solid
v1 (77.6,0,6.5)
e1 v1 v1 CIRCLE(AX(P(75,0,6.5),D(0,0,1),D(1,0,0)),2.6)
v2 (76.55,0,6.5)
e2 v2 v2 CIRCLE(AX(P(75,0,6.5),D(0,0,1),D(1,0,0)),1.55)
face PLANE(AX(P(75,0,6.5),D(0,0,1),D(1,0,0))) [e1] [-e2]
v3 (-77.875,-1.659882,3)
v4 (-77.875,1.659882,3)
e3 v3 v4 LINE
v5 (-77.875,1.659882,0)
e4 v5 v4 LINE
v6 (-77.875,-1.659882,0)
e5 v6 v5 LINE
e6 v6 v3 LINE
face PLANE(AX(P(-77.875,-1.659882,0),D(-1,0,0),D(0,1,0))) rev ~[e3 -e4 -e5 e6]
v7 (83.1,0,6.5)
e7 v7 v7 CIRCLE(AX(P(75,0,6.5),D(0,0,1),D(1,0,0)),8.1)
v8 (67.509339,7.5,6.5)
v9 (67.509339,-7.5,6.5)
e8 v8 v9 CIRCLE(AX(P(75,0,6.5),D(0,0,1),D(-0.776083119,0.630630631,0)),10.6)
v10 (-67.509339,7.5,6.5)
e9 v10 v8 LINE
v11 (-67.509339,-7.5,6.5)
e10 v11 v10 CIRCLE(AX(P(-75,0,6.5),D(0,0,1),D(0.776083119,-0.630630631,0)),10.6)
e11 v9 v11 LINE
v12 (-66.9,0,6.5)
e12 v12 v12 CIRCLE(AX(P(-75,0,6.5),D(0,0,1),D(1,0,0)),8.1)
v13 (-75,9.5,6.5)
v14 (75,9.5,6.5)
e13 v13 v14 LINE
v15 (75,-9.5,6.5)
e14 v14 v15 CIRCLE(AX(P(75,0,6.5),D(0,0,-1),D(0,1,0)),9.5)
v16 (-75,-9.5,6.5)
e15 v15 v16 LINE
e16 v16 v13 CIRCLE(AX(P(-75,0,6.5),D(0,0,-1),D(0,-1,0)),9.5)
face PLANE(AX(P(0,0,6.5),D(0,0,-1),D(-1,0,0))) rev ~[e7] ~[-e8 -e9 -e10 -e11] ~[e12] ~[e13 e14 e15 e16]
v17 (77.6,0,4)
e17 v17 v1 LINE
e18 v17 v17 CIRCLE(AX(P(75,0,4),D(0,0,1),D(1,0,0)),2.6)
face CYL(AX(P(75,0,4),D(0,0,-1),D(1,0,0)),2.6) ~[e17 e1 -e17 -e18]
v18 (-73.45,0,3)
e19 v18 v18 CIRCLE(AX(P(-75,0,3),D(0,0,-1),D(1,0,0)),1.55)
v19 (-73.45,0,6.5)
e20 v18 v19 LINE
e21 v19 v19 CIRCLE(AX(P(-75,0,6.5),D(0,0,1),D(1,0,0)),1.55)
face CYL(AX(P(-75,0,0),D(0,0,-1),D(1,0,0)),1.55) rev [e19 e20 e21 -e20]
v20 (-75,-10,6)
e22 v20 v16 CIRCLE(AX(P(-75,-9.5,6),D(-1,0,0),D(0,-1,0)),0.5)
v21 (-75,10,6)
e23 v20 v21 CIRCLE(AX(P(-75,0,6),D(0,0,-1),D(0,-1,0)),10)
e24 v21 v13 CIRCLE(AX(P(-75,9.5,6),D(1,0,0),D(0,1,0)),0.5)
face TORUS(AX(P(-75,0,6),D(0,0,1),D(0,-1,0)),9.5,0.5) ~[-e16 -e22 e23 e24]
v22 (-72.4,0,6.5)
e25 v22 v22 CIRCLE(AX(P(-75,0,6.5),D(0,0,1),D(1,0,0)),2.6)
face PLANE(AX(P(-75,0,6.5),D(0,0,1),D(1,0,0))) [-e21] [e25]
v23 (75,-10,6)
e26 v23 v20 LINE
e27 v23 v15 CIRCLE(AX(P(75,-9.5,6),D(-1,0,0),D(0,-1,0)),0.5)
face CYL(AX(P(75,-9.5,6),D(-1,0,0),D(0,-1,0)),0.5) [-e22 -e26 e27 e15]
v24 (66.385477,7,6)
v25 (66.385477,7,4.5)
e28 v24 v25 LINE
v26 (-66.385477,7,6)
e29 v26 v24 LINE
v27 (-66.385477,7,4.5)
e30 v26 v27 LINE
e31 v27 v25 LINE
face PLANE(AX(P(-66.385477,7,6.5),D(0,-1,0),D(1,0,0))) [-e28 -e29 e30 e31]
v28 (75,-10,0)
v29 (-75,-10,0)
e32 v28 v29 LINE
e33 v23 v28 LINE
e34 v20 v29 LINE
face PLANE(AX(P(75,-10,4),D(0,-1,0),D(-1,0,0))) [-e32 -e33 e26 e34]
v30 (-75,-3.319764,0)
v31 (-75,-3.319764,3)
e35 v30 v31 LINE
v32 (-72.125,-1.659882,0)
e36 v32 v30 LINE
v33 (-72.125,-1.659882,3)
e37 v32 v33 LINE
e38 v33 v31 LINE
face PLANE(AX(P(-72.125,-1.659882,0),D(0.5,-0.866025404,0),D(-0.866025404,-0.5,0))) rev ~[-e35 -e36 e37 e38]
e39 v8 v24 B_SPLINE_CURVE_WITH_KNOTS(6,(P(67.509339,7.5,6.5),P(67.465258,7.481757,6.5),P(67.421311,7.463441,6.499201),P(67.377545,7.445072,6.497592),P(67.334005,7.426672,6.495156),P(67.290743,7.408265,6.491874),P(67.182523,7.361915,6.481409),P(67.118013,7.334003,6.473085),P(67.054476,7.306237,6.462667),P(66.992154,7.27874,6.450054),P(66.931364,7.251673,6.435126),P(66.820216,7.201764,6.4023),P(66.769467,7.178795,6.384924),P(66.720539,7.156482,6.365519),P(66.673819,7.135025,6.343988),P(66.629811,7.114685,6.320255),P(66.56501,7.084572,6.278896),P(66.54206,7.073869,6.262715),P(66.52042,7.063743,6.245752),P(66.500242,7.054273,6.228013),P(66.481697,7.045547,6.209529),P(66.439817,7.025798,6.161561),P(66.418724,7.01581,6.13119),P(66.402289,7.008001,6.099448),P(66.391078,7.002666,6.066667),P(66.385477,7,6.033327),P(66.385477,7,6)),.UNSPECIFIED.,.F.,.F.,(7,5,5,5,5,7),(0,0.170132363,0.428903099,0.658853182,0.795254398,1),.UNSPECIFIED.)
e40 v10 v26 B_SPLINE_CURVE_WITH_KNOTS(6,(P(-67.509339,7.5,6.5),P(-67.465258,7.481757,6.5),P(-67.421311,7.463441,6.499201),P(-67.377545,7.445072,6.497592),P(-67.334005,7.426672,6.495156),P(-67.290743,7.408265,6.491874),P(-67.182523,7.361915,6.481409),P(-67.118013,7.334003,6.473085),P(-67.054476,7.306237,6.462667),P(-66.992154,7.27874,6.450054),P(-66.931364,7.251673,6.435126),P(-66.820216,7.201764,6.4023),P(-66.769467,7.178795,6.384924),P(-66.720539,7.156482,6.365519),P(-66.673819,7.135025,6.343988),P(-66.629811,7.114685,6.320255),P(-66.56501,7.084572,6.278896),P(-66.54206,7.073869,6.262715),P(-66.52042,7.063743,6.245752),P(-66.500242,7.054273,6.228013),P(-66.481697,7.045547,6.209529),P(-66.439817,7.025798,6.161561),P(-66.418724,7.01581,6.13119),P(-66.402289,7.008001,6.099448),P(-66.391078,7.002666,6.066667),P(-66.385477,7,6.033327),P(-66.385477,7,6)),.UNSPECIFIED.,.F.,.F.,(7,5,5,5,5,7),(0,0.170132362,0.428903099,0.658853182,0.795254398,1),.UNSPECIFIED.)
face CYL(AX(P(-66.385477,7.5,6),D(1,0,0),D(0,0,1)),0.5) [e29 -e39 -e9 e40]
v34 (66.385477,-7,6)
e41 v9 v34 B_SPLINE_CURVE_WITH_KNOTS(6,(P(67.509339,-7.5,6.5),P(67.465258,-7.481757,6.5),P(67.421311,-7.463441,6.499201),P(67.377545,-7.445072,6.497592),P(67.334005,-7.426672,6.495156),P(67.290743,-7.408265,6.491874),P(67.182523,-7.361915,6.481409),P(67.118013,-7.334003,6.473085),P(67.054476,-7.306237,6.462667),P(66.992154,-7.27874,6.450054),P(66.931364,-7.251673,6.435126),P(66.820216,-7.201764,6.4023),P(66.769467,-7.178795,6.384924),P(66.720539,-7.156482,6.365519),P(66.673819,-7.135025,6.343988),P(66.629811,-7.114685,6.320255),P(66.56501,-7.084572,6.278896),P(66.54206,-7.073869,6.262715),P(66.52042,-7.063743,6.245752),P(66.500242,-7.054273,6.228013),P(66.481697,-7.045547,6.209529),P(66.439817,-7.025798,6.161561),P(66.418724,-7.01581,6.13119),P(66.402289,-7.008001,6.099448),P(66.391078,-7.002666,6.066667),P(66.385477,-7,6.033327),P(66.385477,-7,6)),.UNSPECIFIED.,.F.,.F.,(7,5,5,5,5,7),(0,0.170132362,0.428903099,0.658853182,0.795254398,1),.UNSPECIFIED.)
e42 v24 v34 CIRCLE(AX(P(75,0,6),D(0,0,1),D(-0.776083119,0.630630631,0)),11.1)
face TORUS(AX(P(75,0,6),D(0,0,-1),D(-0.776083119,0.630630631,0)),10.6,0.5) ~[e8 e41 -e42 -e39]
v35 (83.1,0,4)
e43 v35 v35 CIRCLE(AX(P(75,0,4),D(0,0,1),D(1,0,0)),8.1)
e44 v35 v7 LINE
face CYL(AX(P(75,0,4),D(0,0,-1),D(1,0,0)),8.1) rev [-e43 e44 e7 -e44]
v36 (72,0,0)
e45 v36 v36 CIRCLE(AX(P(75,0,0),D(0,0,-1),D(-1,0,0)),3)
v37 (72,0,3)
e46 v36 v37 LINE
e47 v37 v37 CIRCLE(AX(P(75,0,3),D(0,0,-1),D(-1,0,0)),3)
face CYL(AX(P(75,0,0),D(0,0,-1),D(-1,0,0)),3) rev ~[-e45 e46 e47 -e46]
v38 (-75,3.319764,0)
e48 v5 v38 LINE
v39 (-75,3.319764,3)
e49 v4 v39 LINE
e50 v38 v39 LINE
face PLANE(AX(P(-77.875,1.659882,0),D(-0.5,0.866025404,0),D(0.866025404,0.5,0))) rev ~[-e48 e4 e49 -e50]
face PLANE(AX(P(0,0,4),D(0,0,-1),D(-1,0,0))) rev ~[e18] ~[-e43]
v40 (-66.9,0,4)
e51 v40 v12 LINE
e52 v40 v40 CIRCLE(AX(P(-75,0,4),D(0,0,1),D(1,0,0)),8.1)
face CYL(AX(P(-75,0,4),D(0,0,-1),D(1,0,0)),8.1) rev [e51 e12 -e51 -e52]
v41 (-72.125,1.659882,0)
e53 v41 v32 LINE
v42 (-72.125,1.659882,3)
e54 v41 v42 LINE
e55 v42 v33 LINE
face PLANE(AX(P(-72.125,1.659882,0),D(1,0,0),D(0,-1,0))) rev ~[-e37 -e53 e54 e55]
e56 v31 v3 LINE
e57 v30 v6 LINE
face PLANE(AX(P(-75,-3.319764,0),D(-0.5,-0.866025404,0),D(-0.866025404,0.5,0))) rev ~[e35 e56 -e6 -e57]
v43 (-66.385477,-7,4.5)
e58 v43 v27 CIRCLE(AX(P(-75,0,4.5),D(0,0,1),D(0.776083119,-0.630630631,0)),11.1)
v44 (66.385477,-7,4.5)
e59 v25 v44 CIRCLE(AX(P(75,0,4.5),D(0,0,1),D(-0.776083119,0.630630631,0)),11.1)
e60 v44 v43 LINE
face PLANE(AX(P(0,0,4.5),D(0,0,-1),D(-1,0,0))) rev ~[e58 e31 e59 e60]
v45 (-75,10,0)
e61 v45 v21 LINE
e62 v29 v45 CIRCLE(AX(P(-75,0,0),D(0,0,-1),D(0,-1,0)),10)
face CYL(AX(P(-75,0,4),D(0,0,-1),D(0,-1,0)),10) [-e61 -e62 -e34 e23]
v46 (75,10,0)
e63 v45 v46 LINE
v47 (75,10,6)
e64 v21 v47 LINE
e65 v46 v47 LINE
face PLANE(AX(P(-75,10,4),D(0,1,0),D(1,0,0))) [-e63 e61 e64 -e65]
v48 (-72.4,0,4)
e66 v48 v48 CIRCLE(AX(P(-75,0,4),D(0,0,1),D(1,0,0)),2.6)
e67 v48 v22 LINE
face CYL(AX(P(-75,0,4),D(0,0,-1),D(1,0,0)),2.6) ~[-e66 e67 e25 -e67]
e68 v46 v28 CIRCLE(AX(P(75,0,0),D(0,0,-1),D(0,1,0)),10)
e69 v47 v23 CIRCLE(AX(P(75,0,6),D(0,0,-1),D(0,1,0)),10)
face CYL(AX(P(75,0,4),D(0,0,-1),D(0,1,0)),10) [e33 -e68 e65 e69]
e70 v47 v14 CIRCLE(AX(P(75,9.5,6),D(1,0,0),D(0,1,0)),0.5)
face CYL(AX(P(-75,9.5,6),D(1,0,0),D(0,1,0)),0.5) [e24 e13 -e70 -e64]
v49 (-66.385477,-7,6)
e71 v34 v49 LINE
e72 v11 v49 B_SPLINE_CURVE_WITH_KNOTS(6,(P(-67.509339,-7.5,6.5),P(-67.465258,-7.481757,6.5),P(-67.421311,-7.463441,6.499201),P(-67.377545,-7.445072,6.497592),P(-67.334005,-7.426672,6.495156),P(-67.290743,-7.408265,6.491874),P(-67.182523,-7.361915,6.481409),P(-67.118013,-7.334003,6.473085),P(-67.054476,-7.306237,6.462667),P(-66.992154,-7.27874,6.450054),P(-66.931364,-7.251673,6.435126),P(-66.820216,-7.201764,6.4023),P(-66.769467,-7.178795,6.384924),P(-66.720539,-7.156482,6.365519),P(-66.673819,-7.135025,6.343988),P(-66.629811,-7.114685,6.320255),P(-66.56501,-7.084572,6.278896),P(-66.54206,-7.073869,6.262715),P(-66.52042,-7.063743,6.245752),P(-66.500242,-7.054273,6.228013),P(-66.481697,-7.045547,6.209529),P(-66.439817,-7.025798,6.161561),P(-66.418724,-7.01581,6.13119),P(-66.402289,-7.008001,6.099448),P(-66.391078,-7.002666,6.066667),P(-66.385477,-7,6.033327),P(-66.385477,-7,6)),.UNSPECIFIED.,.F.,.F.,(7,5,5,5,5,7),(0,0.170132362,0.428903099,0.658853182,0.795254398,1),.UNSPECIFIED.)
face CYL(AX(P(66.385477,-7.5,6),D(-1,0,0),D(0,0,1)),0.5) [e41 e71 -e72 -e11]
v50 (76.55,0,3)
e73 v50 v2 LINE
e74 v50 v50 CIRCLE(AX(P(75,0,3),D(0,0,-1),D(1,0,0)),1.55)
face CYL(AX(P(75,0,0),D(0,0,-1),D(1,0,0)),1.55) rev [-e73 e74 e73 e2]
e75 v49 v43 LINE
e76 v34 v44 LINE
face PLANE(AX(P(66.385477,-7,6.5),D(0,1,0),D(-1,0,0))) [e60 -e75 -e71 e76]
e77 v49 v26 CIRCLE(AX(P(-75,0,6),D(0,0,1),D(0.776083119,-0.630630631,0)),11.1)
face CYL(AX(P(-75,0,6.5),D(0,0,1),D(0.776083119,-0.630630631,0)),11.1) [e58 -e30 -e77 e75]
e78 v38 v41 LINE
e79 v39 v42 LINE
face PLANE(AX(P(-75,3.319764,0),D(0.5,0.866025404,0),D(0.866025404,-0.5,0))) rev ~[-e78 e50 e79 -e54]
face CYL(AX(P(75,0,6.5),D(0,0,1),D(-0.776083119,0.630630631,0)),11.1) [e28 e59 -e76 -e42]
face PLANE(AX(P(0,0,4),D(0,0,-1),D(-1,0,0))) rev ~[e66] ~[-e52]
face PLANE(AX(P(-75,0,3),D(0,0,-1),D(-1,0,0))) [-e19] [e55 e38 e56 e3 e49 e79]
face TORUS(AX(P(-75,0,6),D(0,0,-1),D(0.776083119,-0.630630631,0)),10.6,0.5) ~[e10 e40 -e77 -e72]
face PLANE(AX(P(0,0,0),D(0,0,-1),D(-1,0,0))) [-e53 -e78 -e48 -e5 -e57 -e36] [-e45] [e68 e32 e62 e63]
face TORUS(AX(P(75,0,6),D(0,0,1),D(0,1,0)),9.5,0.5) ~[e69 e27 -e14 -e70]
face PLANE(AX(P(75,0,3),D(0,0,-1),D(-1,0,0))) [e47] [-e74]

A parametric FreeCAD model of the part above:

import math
import FreeCAD as App
import Part
import Sketcher
Q = App.Units.Quantity


def edges_at(feature, points):
    """Names of the edges that pass closest to the given points."""
    edges = feature.Shape.Edges
    near = lambda p: min(range(len(edges)), key=lambda i: edges[i].distToShape(Part.Vertex(*p))[0])
    return sorted({f"Edge{near(p) + 1}" for p in points})

doc = App.newDocument("Part")
body = doc.addObject("PartDesign::Body", "Body")

# Sketch on XY plane
sketch1 = body.newObject("Sketcher::SketchObject", "Sketch")
sketch1.AttachmentSupport = (doc.getObject("XY_Plane"), [""])
sketch1.MapMode = "FlatFace"
sketch1.addGeometry(Part.ArcOfCircle(Part.Circle(App.Vector(75, 0, 0), App.Vector(0, 0, 1), 10), math.radians(-90), math.radians(90)), False)
sketch1.addGeometry(Part.LineSegment(App.Vector(75, 10, 0), App.Vector(-75, 10, 0)), False)
sketch1.addGeometry(Part.ArcOfCircle(Part.Circle(App.Vector(-75, 0, 0), App.Vector(0, 0, 1), 10), math.radians(90), math.radians(270)), False)
sketch1.addGeometry(Part.LineSegment(App.Vector(-75, -10, 0), App.Vector(75, -10, 0)), False)
sketch1.addGeometry(Part.Circle(App.Vector(75, 0, 0), App.Vector(0, 0, 1), 1.6), False)
sketch1.addGeometry(Part.Circle(App.Vector(-75, 0, 0), App.Vector(0, 0, 1), 1.6), False)
sketch1.addConstraint(Sketcher.Constraint("Tangent", 0, 2, 1, 1))
sketch1.addConstraint(Sketcher.Constraint("Tangent", 1, 2, 2, 1))
sketch1.addConstraint(Sketcher.Constraint("Tangent", 2, 2, 3, 1))
sketch1.addConstraint(Sketcher.Constraint("Tangent", 3, 2, 0, 1))
sketch1.addConstraint(Sketcher.Constraint("Horizontal", 1))
sketch1.addConstraint(Sketcher.Constraint("Horizontal", 3))
sketch1.addConstraint(Sketcher.Constraint("Coincident", 4, 3, 0, 3))
sketch1.addConstraint(Sketcher.Constraint("Coincident", 5, 3, 2, 3))
sketch1.addConstraint(Sketcher.Constraint("Equal", 4, 5))
sketch1.addConstraint(Sketcher.Constraint("Symmetric", 0, 3, 2, 3, -1, 1))
sketch1.addConstraint(Sketcher.Constraint("Radius", 0, 10.0))
sketch1.addConstraint(Sketcher.Constraint("Diameter", 4, 3.1))
sketch1.addConstraint(Sketcher.Constraint("DistanceX", 1, 2, 1, 1, 150.0))
pad1 = body.newObject("PartDesign::Pad", "Pad")
pad1.Profile = sketch1
pad1.Length = 4

# Sketch on XY plane
sketch2 = body.newObject("Sketcher::SketchObject", "Sketch001")
sketch2.AttachmentSupport = (doc.getObject("XY_Plane"), [""])
sketch2.MapMode = "FlatFace"
sketch2.AttachmentOffset = App.Placement(App.Vector(0, 0, 4), App.Rotation())
sketch2.addGeometry(Part.ArcOfCircle(Part.Circle(App.Vector(75, 0, 0), App.Vector(0, 0, 1), 10), math.radians(-90), math.radians(90)), False)
sketch2.addGeometry(Part.LineSegment(App.Vector(75, 10, 0), App.Vector(-75, 10, 0)), False)
sketch2.addGeometry(Part.ArcOfCircle(Part.Circle(App.Vector(-75, 0, 0), App.Vector(0, 0, 1), 10), math.radians(90), math.radians(270)), False)
sketch2.addGeometry(Part.LineSegment(App.Vector(-75, -10, 0), App.Vector(75, -10, 0)), False)
sketch2.addGeometry(Part.Circle(App.Vector(75, 0, 0), App.Vector(0, 0, 1), 8.1), False)
sketch2.addGeometry(Part.Circle(App.Vector(-75, 0, 0), App.Vector(0, 0, 1), 8.1), False)
sketch2.addGeometry(Part.Circle(App.Vector(75, 0, 0), App.Vector(0, 0, 1), 2.6), False)
sketch2.addGeometry(Part.Circle(App.Vector(75, 0, 0), App.Vector(0, 0, 1), 1.6), False)
sketch2.addGeometry(Part.Circle(App.Vector(-75, 0, 0), App.Vector(0, 0, 1), 2.6), False)
sketch2.addGeometry(Part.Circle(App.Vector(-75, 0, 0), App.Vector(0, 0, 1), 1.6), False)
sketch2.addConstraint(Sketcher.Constraint("Tangent", 0, 2, 1, 1))
sketch2.addConstraint(Sketcher.Constraint("Tangent", 1, 2, 2, 1))
sketch2.addConstraint(Sketcher.Constraint("Tangent", 2, 2, 3, 1))
sketch2.addConstraint(Sketcher.Constraint("Tangent", 3, 2, 0, 1))
sketch2.addConstraint(Sketcher.Constraint("Horizontal", 1))
sketch2.addConstraint(Sketcher.Constraint("Horizontal", 3))
sketch2.addConstraint(Sketcher.Constraint("Coincident", 4, 3, 0, 3))
sketch2.addConstraint(Sketcher.Constraint("Coincident", 5, 3, 2, 3))
sketch2.addConstraint(Sketcher.Constraint("Coincident", 6, 3, 0, 3))
sketch2.addConstraint(Sketcher.Constraint("Coincident", 7, 3, 0, 3))
sketch2.addConstraint(Sketcher.Constraint("Coincident", 8, 3, 2, 3))
sketch2.addConstraint(Sketcher.Constraint("Coincident", 9, 3, 2, 3))
sketch2.addConstraint(Sketcher.Constraint("Equal", 4, 5))
sketch2.addConstraint(Sketcher.Constraint("Equal", 6, 8))
sketch2.addConstraint(Sketcher.Constraint("Equal", 7, 9))
sketch2.addConstraint(Sketcher.Constraint("Symmetric", 0, 3, 2, 3, -1, 1))
sketch2.addConstraint(Sketcher.Constraint("Radius", 0, 10.0))
sketch2.addConstraint(Sketcher.Constraint("Diameter", 4, 16.2))
sketch2.addConstraint(Sketcher.Constraint("Diameter", 6, 5.2))
sketch2.addConstraint(Sketcher.Constraint("Diameter", 7, 3.1))
sketch2.addConstraint(Sketcher.Constraint("DistanceX", 1, 2, 1, 1, 150.0))
pad2 = body.newObject("PartDesign::Pad", "Pad001")
pad2.Profile = sketch2
pad2.Length = 2.5

# Sketch on XY plane
sketch3 = body.newObject("Sketcher::SketchObject", "Sketch002")
sketch3.AttachmentSupport = (doc.getObject("XY_Plane"), [""])
sketch3.MapMode = "FlatFace"
sketch3.addGeometry(Part.Circle(App.Vector(75, 0, 0), App.Vector(0, 0, 1), 3), False)
sketch3.addGeometry(Part.LineSegment(App.Vector(-72.1, 1.7, 0), App.Vector(-72.1, -1.7, 0)), False)
sketch3.addGeometry(Part.LineSegment(App.Vector(-72.1, -1.7, 0), App.Vector(-75, -3.3, 0)), False)
sketch3.addGeometry(Part.LineSegment(App.Vector(-75, -3.3, 0), App.Vector(-77.9, -1.7, 0)), False)
sketch3.addGeometry(Part.LineSegment(App.Vector(-77.9, -1.7, 0), App.Vector(-77.9, 1.7, 0)), False)
sketch3.addGeometry(Part.LineSegment(App.Vector(-77.9, 1.7, 0), App.Vector(-75, 3.3, 0)), False)
sketch3.addGeometry(Part.LineSegment(App.Vector(-75, 3.3, 0), App.Vector(-72.1, 1.7, 0)), False)
sketch3.addConstraint(Sketcher.Constraint("Coincident", 1, 2, 2, 1))
sketch3.addConstraint(Sketcher.Constraint("Coincident", 2, 2, 3, 1))
sketch3.addConstraint(Sketcher.Constraint("Coincident", 3, 2, 4, 1))
sketch3.addConstraint(Sketcher.Constraint("Coincident", 4, 2, 5, 1))
sketch3.addConstraint(Sketcher.Constraint("Coincident", 5, 2, 6, 1))
sketch3.addConstraint(Sketcher.Constraint("Coincident", 6, 2, 1, 1))
sketch3.addConstraint(Sketcher.Constraint("Vertical", 1))
sketch3.addConstraint(Sketcher.Constraint("Vertical", 4))
sketch3.addConstraint(Sketcher.Constraint("Symmetric", 2, 2, 5, 2, -1))
sketch3.addConstraint(Sketcher.Constraint("PointOnObject", 0, 3, -1))
sketch3.addConstraint(Sketcher.Constraint("Parallel", 2, 5))
sketch3.addConstraint(Sketcher.Constraint("Parallel", 3, 6))
sketch3.addConstraint(Sketcher.Constraint("Horizontal", 1, 2, 3, 2))
sketch3.addConstraint(Sketcher.Constraint("Horizontal", 4, 2, 6, 2))
sketch3.addConstraint(Sketcher.Constraint("Diameter", 0, 6.0))
sketch3.addConstraint(Sketcher.Constraint("Angle", 2, Q("-150 deg")))
sketch3.addConstraint(Sketcher.Constraint("DistanceX", -1, 1, 0, 3, 75.0))
sketch3.addConstraint(Sketcher.Constraint("DistanceX", 2, 2, -1, 1, 75.0))
sketch3.addConstraint(Sketcher.Constraint("DistanceX", 3, 2, 1, 2, 5.75))
sketch3.addConstraint(Sketcher.Constraint("DistanceY", 1, 2, 1, 1, 3.319764))
pocket1 = body.newObject("PartDesign::Pocket", "Pocket")
pocket1.Profile = sketch3
pocket1.Length = 3
pocket1.Reversed = True

# Sketch on XY plane
sketch4 = body.newObject("Sketcher::SketchObject", "Sketch003")
sketch4.AttachmentSupport = (doc.getObject("XY_Plane"), [""])
sketch4.MapMode = "FlatFace"
sketch4.AttachmentOffset = App.Placement(App.Vector(0, 0, 6.5), App.Rotation())
sketch4.addGeometry(Part.LineSegment(App.Vector(-66, -7, 0), App.Vector(66, -7, 0)), False)
sketch4.addGeometry(Part.ArcOfCircle(Part.Circle(App.Vector(75, 0, 0), App.Vector(0, 0, 1), 11), math.radians(141), math.radians(219)), False)
sketch4.addGeometry(Part.LineSegment(App.Vector(66, 7, 0), App.Vector(-66, 7, 0)), False)
sketch4.addGeometry(Part.ArcOfCircle(Part.Circle(App.Vector(-75, 0, 0), App.Vector(0, 0, 1), 11), math.radians(-39), math.radians(39)), False)
sketch4.addConstraint(Sketcher.Constraint("Coincident", 0, 2, 1, 2))
sketch4.addConstraint(Sketcher.Constraint("Coincident", 1, 1, 2, 1))
sketch4.addConstraint(Sketcher.Constraint("Coincident", 2, 2, 3, 2))
sketch4.addConstraint(Sketcher.Constraint("Coincident", 3, 1, 0, 1))
sketch4.addConstraint(Sketcher.Constraint("Horizontal", 0))
sketch4.addConstraint(Sketcher.Constraint("Horizontal", 2))
sketch4.addConstraint(Sketcher.Constraint("Equal", 1, 3))
sketch4.addConstraint(Sketcher.Constraint("Symmetric", 1, 3, 3, 3, -1, 1))
sketch4.addConstraint(Sketcher.Constraint("Symmetric", 0, 2, 1, 1, -1))
sketch4.addConstraint(Sketcher.Constraint("Radius", 1, 11.1))
sketch4.addConstraint(Sketcher.Constraint("DistanceX", -1, 1, 1, 3, 75.0))
sketch4.addConstraint(Sketcher.Constraint("DistanceY", 0, 2, -1, 1, 7.0))
pocket2 = body.newObject("PartDesign::Pocket", "Pocket001")
pocket2.Profile = sketch4
pocket2.Length = 2
doc.recompute()

fillet = body.newObject("PartDesign::Fillet", "Fillet")
fillet.Base = (pocket2, edges_at(pocket2, [
    (85, 0, 6.5),
    (0, 10, 6.5),
    (-85, 0, 6.5),
    (0, -10, 6.5),
    (63.9, 0, 6.5),
    (0, 7, 6.5),
    (-63.9, 0, 6.5),
    (0, -7, 6.5),
]))
fillet.Radius = 0.5

doc.recompute()
